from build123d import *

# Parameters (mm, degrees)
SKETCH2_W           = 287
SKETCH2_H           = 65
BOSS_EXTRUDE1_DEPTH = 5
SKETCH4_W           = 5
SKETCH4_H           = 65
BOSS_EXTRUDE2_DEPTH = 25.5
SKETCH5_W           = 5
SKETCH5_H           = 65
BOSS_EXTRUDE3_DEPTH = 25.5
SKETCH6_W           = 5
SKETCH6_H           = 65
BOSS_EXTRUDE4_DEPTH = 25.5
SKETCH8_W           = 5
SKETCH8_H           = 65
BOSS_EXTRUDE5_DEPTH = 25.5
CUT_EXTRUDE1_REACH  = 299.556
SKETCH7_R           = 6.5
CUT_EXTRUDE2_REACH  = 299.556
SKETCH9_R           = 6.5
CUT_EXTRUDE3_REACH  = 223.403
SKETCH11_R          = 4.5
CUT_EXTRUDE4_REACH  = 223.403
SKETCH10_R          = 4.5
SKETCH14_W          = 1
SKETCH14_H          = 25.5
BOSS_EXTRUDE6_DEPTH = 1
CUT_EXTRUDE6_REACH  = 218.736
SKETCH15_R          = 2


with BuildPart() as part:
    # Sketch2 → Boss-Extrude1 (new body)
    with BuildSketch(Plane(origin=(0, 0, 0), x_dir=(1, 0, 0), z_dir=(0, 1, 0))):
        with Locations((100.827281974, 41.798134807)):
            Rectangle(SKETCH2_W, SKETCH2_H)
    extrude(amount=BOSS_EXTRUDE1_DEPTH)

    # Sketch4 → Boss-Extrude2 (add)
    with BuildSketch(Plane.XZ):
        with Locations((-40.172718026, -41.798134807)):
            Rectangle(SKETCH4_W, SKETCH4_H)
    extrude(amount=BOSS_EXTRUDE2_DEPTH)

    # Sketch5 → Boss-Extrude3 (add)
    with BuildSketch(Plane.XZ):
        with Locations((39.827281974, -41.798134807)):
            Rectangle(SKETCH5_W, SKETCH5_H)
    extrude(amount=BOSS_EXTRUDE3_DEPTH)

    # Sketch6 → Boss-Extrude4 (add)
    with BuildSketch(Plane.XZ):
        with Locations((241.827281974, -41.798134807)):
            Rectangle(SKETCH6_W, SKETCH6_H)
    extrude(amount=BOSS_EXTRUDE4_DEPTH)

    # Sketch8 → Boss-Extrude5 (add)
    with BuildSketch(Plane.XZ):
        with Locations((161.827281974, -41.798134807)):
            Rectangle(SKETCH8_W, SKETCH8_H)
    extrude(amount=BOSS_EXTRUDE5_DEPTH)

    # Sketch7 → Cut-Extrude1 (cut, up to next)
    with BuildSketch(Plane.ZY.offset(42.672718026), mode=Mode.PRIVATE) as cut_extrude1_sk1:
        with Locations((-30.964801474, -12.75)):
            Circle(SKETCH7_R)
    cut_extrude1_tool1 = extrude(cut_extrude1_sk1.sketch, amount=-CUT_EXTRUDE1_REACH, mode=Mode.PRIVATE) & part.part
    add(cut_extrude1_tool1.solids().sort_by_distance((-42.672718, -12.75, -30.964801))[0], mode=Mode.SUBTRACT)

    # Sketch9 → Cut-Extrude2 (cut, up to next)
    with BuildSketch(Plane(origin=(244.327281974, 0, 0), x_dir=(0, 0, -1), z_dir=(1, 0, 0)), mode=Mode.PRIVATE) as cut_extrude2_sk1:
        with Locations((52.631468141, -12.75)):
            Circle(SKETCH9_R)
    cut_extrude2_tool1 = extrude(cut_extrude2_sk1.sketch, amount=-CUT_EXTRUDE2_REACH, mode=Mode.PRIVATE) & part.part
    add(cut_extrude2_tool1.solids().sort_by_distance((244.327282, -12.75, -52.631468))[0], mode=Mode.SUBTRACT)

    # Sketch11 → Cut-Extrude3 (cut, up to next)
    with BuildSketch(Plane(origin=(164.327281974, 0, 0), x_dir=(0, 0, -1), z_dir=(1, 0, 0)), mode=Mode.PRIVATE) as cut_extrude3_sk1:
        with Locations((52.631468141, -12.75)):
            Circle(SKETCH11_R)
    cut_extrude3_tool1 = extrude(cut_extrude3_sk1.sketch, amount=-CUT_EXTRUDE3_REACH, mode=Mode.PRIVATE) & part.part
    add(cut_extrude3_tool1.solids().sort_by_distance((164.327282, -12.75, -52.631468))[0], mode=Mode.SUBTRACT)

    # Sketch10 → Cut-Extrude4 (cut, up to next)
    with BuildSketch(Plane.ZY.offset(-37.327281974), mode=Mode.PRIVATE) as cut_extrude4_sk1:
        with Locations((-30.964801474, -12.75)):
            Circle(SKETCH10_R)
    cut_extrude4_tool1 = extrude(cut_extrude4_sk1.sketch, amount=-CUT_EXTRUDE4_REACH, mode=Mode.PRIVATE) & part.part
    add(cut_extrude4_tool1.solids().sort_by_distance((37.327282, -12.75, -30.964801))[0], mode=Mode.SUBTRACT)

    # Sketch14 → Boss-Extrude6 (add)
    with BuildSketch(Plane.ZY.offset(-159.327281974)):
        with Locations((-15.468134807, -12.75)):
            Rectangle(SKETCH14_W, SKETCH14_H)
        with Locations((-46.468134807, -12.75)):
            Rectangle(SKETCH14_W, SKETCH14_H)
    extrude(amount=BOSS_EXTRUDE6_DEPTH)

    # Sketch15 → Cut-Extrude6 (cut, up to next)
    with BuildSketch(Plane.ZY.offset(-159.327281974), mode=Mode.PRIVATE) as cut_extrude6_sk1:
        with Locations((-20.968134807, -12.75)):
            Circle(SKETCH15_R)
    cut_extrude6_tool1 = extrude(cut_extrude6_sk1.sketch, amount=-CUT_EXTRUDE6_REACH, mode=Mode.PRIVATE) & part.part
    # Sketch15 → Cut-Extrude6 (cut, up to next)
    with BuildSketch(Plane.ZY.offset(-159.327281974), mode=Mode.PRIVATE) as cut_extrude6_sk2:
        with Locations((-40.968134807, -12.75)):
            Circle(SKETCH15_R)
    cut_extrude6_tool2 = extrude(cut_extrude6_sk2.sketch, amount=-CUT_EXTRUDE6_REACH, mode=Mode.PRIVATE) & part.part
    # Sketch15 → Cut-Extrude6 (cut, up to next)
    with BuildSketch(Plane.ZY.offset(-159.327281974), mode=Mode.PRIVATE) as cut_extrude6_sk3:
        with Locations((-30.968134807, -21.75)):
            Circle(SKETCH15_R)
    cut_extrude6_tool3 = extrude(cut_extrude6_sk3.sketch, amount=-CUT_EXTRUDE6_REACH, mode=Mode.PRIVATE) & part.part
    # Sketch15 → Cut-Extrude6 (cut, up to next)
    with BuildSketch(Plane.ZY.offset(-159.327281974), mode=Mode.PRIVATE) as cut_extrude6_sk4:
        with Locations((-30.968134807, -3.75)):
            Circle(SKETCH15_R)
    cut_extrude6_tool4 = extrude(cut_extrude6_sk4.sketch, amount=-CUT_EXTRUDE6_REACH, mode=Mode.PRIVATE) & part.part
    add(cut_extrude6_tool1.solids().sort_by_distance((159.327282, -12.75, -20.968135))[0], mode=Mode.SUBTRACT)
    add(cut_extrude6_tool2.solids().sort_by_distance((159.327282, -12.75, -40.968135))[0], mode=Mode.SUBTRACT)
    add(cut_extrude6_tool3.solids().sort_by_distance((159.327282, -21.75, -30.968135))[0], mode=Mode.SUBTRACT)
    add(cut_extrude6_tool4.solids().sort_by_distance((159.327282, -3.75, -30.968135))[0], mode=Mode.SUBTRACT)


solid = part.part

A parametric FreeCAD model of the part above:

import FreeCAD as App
import Part
import Sketcher
from FreeCAD import Vector


def add_polygon(sketch, points):
    """Adds a closed chain of lines whose ends are joined by coincident constraints."""
    first, n = sketch.GeometryCount, len(points)
    for a, b in zip(points, points[1:] + points[:1]):
        sketch.addGeometry(Part.LineSegment(App.Vector(*a, 0), App.Vector(*b, 0)), False)
    for i in range(n):
        sketch.addConstraint(Sketcher.Constraint("Coincident", first + i, 2, first + (i + 1) % n, 1))

doc = App.newDocument("Part")
body = doc.addObject("PartDesign::Body", "Body")

sketch1 = body.newObject("Sketcher::SketchObject", "Sketch")
sketch1.AttachmentSupport = (doc.getObject("XZ_Plane"), [""])
sketch1.MapMode = "FlatFace"
add_polygon(sketch1, [(-43, -74), (-43, -9), (244, -9), (244, -74)])
sketch1.addConstraint([
    Sketcher.Constraint("Vertical", 0),
    Sketcher.Constraint("Horizontal", 1),
    Sketcher.Constraint("Vertical", 2),
    Sketcher.Constraint("Horizontal", 3),
    Sketcher.Constraint("DistanceX", 1, 1, 1, 2, 287.0),
    Sketcher.Constraint("DistanceY", 0, 1, 0, 2, 65.0),
    Sketcher.Constraint("DistanceX", 0, 2, -1, 1, 42.672718),
    Sketcher.Constraint("DistanceY", 0, 2, -1, 1, 9.298135),
])
pad1 = body.newObject("PartDesign::Pad", "Pad")
pad1.Profile = sketch1
pad1.Length = 5
pad1.Reversed = True

sketch2 = body.newObject("Sketcher::SketchObject", "Sketch001")
sketch2.AttachmentSupport = (doc.getObject("XZ_Plane"), [""])
sketch2.MapMode = "FlatFace"
add_polygon(sketch2, [(-43, -9), (-43, -74), (-38, -74), (-38, -9)])
sketch2.addConstraint([
    Sketcher.Constraint("Vertical", 0),
    Sketcher.Constraint("Horizontal", 1),
    Sketcher.Constraint("Vertical", 2),
    Sketcher.Constraint("Horizontal", 3),
    Sketcher.Constraint("DistanceX", 1, 1, 1, 2, 5.0),
    Sketcher.Constraint("DistanceY", 0, 2, 0, 1, 65.0),
    Sketcher.Constraint("DistanceX", 0, 2, -1, 1, 42.672718),
    Sketcher.Constraint("DistanceY", 0, 2, -1, 1, 74.298135),
])
pad2 = body.newObject("PartDesign::Pad", "Pad001")
pad2.Profile = sketch2
pad2.Length = 25.5

sketch3 = body.newObject("Sketcher::SketchObject", "Sketch002")
sketch3.AttachmentSupport = (doc.getObject("XZ_Plane"), [""])
sketch3.MapMode = "FlatFace"
add_polygon(sketch3, [(37, -9), (37, -74), (42, -74), (42, -9)])
sketch3.addConstraint([
    Sketcher.Constraint("Vertical", 0),
    Sketcher.Constraint("Horizontal", 1),
    Sketcher.Constraint("Vertical", 2),
    Sketcher.Constraint("Horizontal", 3),
    Sketcher.Constraint("DistanceX", 1, 1, 1, 2, 5.0),
    Sketcher.Constraint("DistanceY", 0, 2, 0, 1, 65.0),
    Sketcher.Constraint("DistanceX", -1, 1, 0, 2, 37.327282),
    Sketcher.Constraint("DistanceY", 0, 2, -1, 1, 74.298135),
])
pad3 = body.newObject("PartDesign::Pad", "Pad002")
pad3.Profile = sketch3
pad3.Length = 25.5

sketch4 = body.newObject("Sketcher::SketchObject", "Sketch003")
sketch4.AttachmentSupport = (doc.getObject("XZ_Plane"), [""])
sketch4.MapMode = "FlatFace"
add_polygon(sketch4, [(239, -9), (239, -74), (244, -74), (244, -9)])
sketch4.addConstraint([
    Sketcher.Constraint("Vertical", 0),
    Sketcher.Constraint("Horizontal", 1),
    Sketcher.Constraint("Vertical", 2),
    Sketcher.Constraint("Horizontal", 3),
    Sketcher.Constraint("DistanceX", 1, 1, 1, 2, 5.0),
    Sketcher.Constraint("DistanceY", 0, 2, 0, 1, 65.0),
    Sketcher.Constraint("DistanceX", -1, 1, 0, 2, 239.327282),
    Sketcher.Constraint("DistanceY", 0, 2, -1, 1, 74.298135),
])
pad4 = body.newObject("PartDesign::Pad", "Pad003")
pad4.Profile = sketch4
pad4.Length = 25.5

sketch5 = body.newObject("Sketcher::SketchObject", "Sketch004")
sketch5.AttachmentSupport = (doc.getObject("XZ_Plane"), [""])
sketch5.MapMode = "FlatFace"
add_polygon(sketch5, [(159, -9), (159, -74), (164, -74), (164, -9)])
sketch5.addConstraint([
    Sketcher.Constraint("Vertical", 0),
    Sketcher.Constraint("Horizontal", 1),
    Sketcher.Constraint("Vertical", 2),
    Sketcher.Constraint("Horizontal", 3),
    Sketcher.Constraint("DistanceX", 1, 1, 1, 2, 5.0),
    Sketcher.Constraint("DistanceY", 0, 2, 0, 1, 65.0),
    Sketcher.Constraint("DistanceX", -1, 1, 0, 2, 159.327282),
    Sketcher.Constraint("DistanceY", 0, 2, -1, 1, 74.298135),
])
pad5 = body.newObject("PartDesign::Pad", "Pad004")
pad5.Profile = sketch5
pad5.Length = 25.5

sketch6 = body.newObject("Sketcher::SketchObject", "Sketch005")
sketch6.AttachmentSupport = (doc.getObject("YZ_Plane"), [""])
sketch6.MapMode = "FlatFace"
sketch6.AttachmentOffset = App.Placement(Vector(0, 0, -42.672718), App.Rotation())
sketch6.addGeometry(Part.Circle(Vector(-13, -31, 0), Vector(0, 0, 1), 6), False)
sketch6.addConstraint([
    Sketcher.Constraint("Diameter", 0, 13.0),
    Sketcher.Constraint("DistanceX", 0, 3, -1, 1, 12.75),
    Sketcher.Constraint("DistanceY", 0, 3, -1, 1, 30.964801),
])
pocket1 = body.newObject("PartDesign::Pocket", "Pocket")
pocket1.Profile = sketch6
pocket1.Type = "UpToFirst"
pocket1.Reversed = True

sketch7 = body.newObject("Sketcher::SketchObject", "Sketch006")
sketch7.AttachmentSupport = (doc.getObject("YZ_Plane"), [""])
sketch7.MapMode = "FlatFace"
sketch7.AttachmentOffset = App.Placement(Vector(0, 0, 244.327282), App.Rotation())
sketch7.addGeometry(Part.Circle(Vector(-13, -53, 0), Vector(0, 0, 1), 6), False)
sketch7.addConstraint([
    Sketcher.Constraint("Diameter", 0, 13.0),
    Sketcher.Constraint("DistanceX", 0, 3, -1, 1, 12.75),
    Sketcher.Constraint("DistanceY", 0, 3, -1, 1, 52.631468),
])
pocket2 = body.newObject("PartDesign::Pocket", "Pocket001")
pocket2.Profile = sketch7
pocket2.Type = "UpToFirst"

sketch8 = body.newObject("Sketcher::SketchObject", "Sketch007")
sketch8.AttachmentSupport = (doc.getObject("YZ_Plane"), [""])
sketch8.MapMode = "FlatFace"
sketch8.AttachmentOffset = App.Placement(Vector(0, 0, 164.327282), App.Rotation())
sketch8.addGeometry(Part.Circle(Vector(-12.8, -52.6, 0), Vector(0, 0, 1), 4.5), False)
sketch8.addConstraint([
    Sketcher.Constraint("Diameter", 0, 9.0),
    Sketcher.Constraint("DistanceX", 0, 3, -1, 1, 12.75),
    Sketcher.Constraint("DistanceY", 0, 3, -1, 1, 52.631468),
])
pocket3 = body.newObject("PartDesign::Pocket", "Pocket002")
pocket3.Profile = sketch8
pocket3.Type = "UpToFirst"

sketch9 = body.newObject("Sketcher::SketchObject", "Sketch008")
sketch9.AttachmentSupport = (doc.getObject("YZ_Plane"), [""])
sketch9.MapMode = "FlatFace"
sketch9.AttachmentOffset = App.Placement(Vector(0, 0, 37.327282), App.Rotation())
sketch9.addGeometry(Part.Circle(Vector(-12.8, -31, 0), Vector(0, 0, 1), 4.5), False)
sketch9.addConstraint([
    Sketcher.Constraint("Diameter", 0, 9.0),
    Sketcher.Constraint("DistanceX", 0, 3, -1, 1, 12.75),
    Sketcher.Constraint("DistanceY", 0, 3, -1, 1, 30.964801),
])
pocket4 = body.newObject("PartDesign::Pocket", "Pocket003")
pocket4.Profile = sketch9
pocket4.Type = "UpToFirst"
pocket4.Reversed = True

sketch10 = body.newObject("Sketcher::SketchObject", "Sketch009")
sketch10.AttachmentSupport = (doc.getObject("YZ_Plane"), [""])
sketch10.MapMode = "FlatFace"
sketch10.AttachmentOffset = App.Placement(Vector(0, 0, 159.327282), App.Rotation())
add_polygon(sketch10, [(0, -16), (-25.5, -16), (-25.5, -15), (0, -15)])
add_polygon(sketch10, [(0, -47), (-25.5, -47), (-25.5, -46), (0, -46)])
sketch10.addConstraint([
    Sketcher.Constraint("Horizontal", 0),
    Sketcher.Constraint("Vertical", 1),
    Sketcher.Constraint("Horizontal", 2),
    Sketcher.Constraint("Vertical", 3),
    Sketcher.Constraint("Horizontal", 4),
    Sketcher.Constraint("Vertical", 5),
    Sketcher.Constraint("Horizontal", 6),
    Sketcher.Constraint("Vertical", 7),
    Sketcher.Constraint("PointOnObject", 2, 2, -2),
    Sketcher.Constraint("PointOnObject", 6, 2, -2),
    Sketcher.Constraint("Vertical", 1, 2, 4, 2),
    Sketcher.Constraint("Equal", 3, 5),
    Sketcher.Constraint("DistanceY", 1, 1, 1, 2, 1.0),
    Sketcher.Constraint("DistanceX", 0, 2, 0, 1, 25.5),
    Sketcher.Constraint("DistanceY", 4, 2, 0, 2, 31.0),
    Sketcher.Constraint("DistanceY", 0, 2, -1, 1, 15.968135),
])
pad6 = body.newObject("PartDesign::Pad", "Pad005")
pad6.Profile = sketch10
pad6.Length = 1
pad6.Reversed = True

sketch11 = body.newObject("Sketcher::SketchObject", "Sketch010")
sketch11.AttachmentSupport = (doc.getObject("YZ_Plane"), [""])
sketch11.MapMode = "FlatFace"
sketch11.AttachmentOffset = App.Placement(Vector(0, 0, 159.327282), App.Rotation())
sketch11.addGeometry(Part.Circle(Vector(-12.8, -21, 0), Vector(0, 0, 1), 2), False)
sketch11.addConstraint([
    Sketcher.Constraint("Diameter", 0, 4.0),
    Sketcher.Constraint("DistanceX", 0, 3, -1, 1, 12.75),
    Sketcher.Constraint("DistanceY", 0, 3, -1, 1, 20.968135),
])
pocket5 = body.newObject("PartDesign::Pocket", "Pocket004")
pocket5.Profile = sketch11
pocket5.Type = "UpToFirst"
pocket5.Reversed = True

sketch12 = body.newObject("Sketcher::SketchObject", "Sketch011")
sketch12.AttachmentSupport = (doc.getObject("YZ_Plane"), [""])
sketch12.MapMode = "FlatFace"
sketch12.AttachmentOffset = App.Placement(Vector(0, 0, 159.327282), App.Rotation())
sketch12.addGeometry(Part.Circle(Vector(-12.8, -41, 0), Vector(0, 0, 1), 2), False)
sketch12.addConstraint([
    Sketcher.Constraint("Diameter", 0, 4.0),
    Sketcher.Constraint("DistanceX", 0, 3, -1, 1, 12.75),
    Sketcher.Constraint("DistanceY", 0, 3, -1, 1, 40.968135),
])
pocket6 = body.newObject("PartDesign::Pocket", "Pocket005")
pocket6.Profile = sketch12
pocket6.Type = "UpToFirst"
pocket6.Reversed = True

sketch13 = body.newObject("Sketcher::SketchObject", "Sketch012")
sketch13.AttachmentSupport = (doc.getObject("YZ_Plane"), [""])
sketch13.MapMode = "FlatFace"
sketch13.AttachmentOffset = App.Placement(Vector(0, 0, 159.327282), App.Rotation())
sketch13.addGeometry(Part.Circle(Vector(-21.8, -31, 0), Vector(0, 0, 1), 2), False)
sketch13.addConstraint([
    Sketcher.Constraint("Diameter", 0, 4.0),
    Sketcher.Constraint("DistanceX", 0, 3, -1, 1, 21.75),
    Sketcher.Constraint("DistanceY", 0, 3, -1, 1, 30.968135),
])
pocket7 = body.newObject("PartDesign::Pocket", "Pocket006")
pocket7.Profile = sketch13
pocket7.Type = "UpToFirst"
pocket7.Reversed = True

sketch14 = body.newObject("Sketcher::SketchObject", "Sketch013")
sketch14.AttachmentSupport = (doc.getObject("YZ_Plane"), [""])
sketch14.MapMode = "FlatFace"
sketch14.AttachmentOffset = App.Placement(Vector(0, 0, 159.327282), App.Rotation())
sketch14.addGeometry(Part.Circle(Vector(-3.8, -31, 0), Vector(0, 0, 1), 2), False)
sketch14.addConstraint([
    Sketcher.Constraint("Diameter", 0, 4.0),
    Sketcher.Constraint("DistanceX", 0, 3, -1, 1, 3.75),
    Sketcher.Constraint("DistanceY", 0, 3, -1, 1, 30.968135),
])
pocket8 = body.newObject("PartDesign::Pocket", "Pocket007")
pocket8.Profile = sketch14
pocket8.Type = "UpToFirst"
pocket8.Reversed = True

doc.recompute()
